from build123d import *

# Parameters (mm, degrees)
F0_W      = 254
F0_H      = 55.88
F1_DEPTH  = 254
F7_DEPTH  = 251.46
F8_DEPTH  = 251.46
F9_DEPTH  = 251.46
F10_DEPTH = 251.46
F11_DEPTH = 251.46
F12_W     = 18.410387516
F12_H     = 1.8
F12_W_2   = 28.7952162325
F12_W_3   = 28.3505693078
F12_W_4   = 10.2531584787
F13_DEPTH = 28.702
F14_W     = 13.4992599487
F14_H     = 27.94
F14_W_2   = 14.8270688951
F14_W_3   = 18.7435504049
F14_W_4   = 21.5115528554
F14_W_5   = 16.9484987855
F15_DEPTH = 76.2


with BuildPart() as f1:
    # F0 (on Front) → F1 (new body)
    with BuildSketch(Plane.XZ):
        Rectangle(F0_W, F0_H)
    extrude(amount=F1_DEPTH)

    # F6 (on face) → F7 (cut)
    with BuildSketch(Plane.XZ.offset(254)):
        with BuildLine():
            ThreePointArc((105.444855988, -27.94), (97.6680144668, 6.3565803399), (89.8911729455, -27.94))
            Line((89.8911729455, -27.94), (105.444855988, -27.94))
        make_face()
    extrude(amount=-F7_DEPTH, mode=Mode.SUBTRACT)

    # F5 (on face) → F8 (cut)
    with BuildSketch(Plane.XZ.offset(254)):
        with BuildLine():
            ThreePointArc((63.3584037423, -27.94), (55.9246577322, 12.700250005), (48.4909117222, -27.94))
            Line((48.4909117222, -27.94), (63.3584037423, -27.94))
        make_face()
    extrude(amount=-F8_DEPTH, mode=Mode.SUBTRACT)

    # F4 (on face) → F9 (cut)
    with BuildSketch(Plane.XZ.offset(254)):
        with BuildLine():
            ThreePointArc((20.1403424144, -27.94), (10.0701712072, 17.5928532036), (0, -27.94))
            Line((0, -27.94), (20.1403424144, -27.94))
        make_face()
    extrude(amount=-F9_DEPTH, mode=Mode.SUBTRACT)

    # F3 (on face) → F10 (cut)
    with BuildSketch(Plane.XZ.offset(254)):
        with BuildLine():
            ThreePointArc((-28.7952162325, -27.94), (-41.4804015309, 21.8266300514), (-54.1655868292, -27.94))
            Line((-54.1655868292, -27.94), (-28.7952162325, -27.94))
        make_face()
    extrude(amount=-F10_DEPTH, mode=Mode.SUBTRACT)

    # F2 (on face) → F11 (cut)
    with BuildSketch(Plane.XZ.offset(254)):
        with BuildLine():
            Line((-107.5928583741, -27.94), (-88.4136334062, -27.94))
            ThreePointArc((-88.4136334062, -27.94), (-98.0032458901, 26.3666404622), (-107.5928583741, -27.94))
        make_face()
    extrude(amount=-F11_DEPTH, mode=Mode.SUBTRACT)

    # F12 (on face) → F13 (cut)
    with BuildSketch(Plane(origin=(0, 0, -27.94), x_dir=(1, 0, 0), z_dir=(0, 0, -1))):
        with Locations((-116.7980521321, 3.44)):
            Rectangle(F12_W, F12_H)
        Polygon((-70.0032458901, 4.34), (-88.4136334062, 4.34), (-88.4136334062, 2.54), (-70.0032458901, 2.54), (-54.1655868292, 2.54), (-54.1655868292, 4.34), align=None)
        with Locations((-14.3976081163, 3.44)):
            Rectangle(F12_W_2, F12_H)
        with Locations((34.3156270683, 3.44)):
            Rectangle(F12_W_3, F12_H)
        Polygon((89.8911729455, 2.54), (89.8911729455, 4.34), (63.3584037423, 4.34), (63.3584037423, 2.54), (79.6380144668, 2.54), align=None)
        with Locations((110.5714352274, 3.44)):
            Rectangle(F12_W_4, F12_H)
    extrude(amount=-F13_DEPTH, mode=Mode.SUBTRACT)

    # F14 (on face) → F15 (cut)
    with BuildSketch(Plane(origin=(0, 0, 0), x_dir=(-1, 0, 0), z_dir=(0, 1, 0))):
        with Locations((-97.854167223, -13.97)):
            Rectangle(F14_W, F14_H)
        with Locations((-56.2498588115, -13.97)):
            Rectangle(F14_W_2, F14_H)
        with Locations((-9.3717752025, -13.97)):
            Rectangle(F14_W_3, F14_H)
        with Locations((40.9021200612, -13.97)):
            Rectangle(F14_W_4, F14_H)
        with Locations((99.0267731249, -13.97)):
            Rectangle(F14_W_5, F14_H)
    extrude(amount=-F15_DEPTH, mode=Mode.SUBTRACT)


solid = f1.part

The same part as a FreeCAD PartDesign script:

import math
import FreeCAD as App
import Part
import Sketcher
from FreeCAD import Vector
Q = App.Units.Quantity


def add_polygon(sketch, points):
    """Adds a closed chain of lines whose ends are joined by coincident constraints."""
    first, n = sketch.GeometryCount, len(points)
    for a, b in zip(points, points[1:] + points[:1]):
        sketch.addGeometry(Part.LineSegment(App.Vector(*a, 0), App.Vector(*b, 0)), False)
    for i in range(n):
        sketch.addConstraint(Sketcher.Constraint("Coincident", first + i, 2, first + (i + 1) % n, 1))

doc = App.newDocument("Part")
body = doc.addObject("PartDesign::Body", "Body")

# Sketch on XZ plane
sketch1 = body.newObject("Sketcher::SketchObject", "Sketch")
sketch1.AttachmentSupport = (doc.getObject("XZ_Plane"), [""])
sketch1.MapMode = "FlatFace"
add_polygon(sketch1, [(-127, 28), (-127, -28), (127, -28), (127, 28)])  # lines 0-3
sketch1.addConstraint([
    Sketcher.Constraint("Vertical", 0),
    Sketcher.Constraint("Horizontal", 1),
    Sketcher.Constraint("Vertical", 2),
    Sketcher.Constraint("Horizontal", 3),
    Sketcher.Constraint("Symmetric", 0, 2, 2, 2, -1, 1),
    Sketcher.Constraint("DistanceX", 1, 1, 1, 2, Q("10 in")),
    Sketcher.Constraint("DistanceY", 0, 2, 0, 1, Q("2.2 in")),
])
pad1 = body.newObject("PartDesign::Pad", "Pad")
pad1.Profile = sketch1
pad1.Length = Q("10 in")

# Sketch on XZ plane
sketch2 = body.newObject("Sketcher::SketchObject", "Sketch001")
sketch2.AttachmentSupport = (doc.getObject("XZ_Plane"), [""])
sketch2.MapMode = "FlatFace"
sketch2.AttachmentOffset = App.Placement(Vector(0, 0, 10 * 25.4), App.Rotation())
sketch2.addGeometry([
    Part.ArcOfCircle(Part.Circle(Vector(98, -12, 0), Vector(0, 0, 1), 18), math.radians(-64), math.radians(244)),
    Part.LineSegment(Vector(90, -28, 0), Vector(105, -28, 0)),
], False)
sketch2.addConstraint([
    Sketcher.Constraint("Coincident", 0, 1, 1, 2),
    Sketcher.Constraint("Coincident", 1, 1, 0, 2),
    Sketcher.Constraint("Horizontal", 1),
    Sketcher.Constraint("DistanceY", 0, 1, -1, 1, Q("1.1 in")),
    Sketcher.Constraint("Radius", 0, 18.03),
    Sketcher.Constraint("DistanceX", 1, 1, 1, 2, 15.553683),
    Sketcher.Constraint("DistanceX", -1, 1, 0, 3, 97.668014),
])
pocket1 = body.newObject("PartDesign::Pocket", "Pocket")
pocket1.Profile = sketch2
pocket1.Length = Q("9.9 in")

# Sketch on XZ plane
sketch3 = body.newObject("Sketcher::SketchObject", "Sketch002")
sketch3.AttachmentSupport = (doc.getObject("XZ_Plane"), [""])
sketch3.MapMode = "FlatFace"
sketch3.AttachmentOffset = App.Placement(Vector(0, 0, 10 * 25.4), App.Rotation())
sketch3.addGeometry([
    Part.ArcOfCircle(Part.Circle(Vector(56, -8, 0), Vector(0, 0, 1), 21), math.radians(-69), math.radians(249)),
    Part.LineSegment(Vector(48, -28, 0), Vector(63, -28, 0)),
], False)
sketch3.addConstraint([
    Sketcher.Constraint("Coincident", 0, 1, 1, 2),
    Sketcher.Constraint("Coincident", 1, 1, 0, 2),
    Sketcher.Constraint("Horizontal", 1),
    Sketcher.Constraint("DistanceY", 0, 1, -1, 1, Q("1.1 in")),
    Sketcher.Constraint("Radius", 0, 21.0),
    Sketcher.Constraint("DistanceX", 1, 1, 1, 2, 14.867492),
    Sketcher.Constraint("DistanceX", -1, 1, 1, 1, 48.490912),
])
pocket2 = body.newObject("PartDesign::Pocket", "Pocket001")
pocket2.Profile = sketch3
pocket2.Length = Q("9.9 in")

# Sketch on XZ plane
sketch4 = body.newObject("Sketcher::SketchObject", "Sketch003")
sketch4.AttachmentSupport = (doc.getObject("XZ_Plane"), [""])
sketch4.MapMode = "FlatFace"
sketch4.AttachmentOffset = App.Placement(Vector(0, 0, 10 * 25.4), App.Rotation())
sketch4.addGeometry([
    Part.ArcOfCircle(Part.Circle(Vector(10, -6, 0), Vector(0, 0, 1), 24), math.radians(-65), math.radians(245)),
    Part.LineSegment(Vector(0, -28, 0), Vector(20, -28, 0)),
], False)
sketch4.addConstraint([
    Sketcher.Constraint("Coincident", 0, 1, 1, 2),
    Sketcher.Constraint("Coincident", 1, 1, 0, 2),
    Sketcher.Constraint("Horizontal", 1),
    Sketcher.Constraint("PointOnObject", 1, 1, -2),
    Sketcher.Constraint("DistanceY", 0, 1, -1, 1, Q("1.1 in")),
    Sketcher.Constraint("Radius", 0, 23.88),
    Sketcher.Constraint("DistanceX", 1, 1, 1, 2, 20.140342),
])
pocket3 = body.newObject("PartDesign::Pocket", "Pocket002")
pocket3.Profile = sketch4
pocket3.Length = Q("9.9 in")

# Sketch on XZ plane
sketch5 = body.newObject("Sketcher::SketchObject", "Sketch004")
sketch5.AttachmentSupport = (doc.getObject("XZ_Plane"), [""])
sketch5.MapMode = "FlatFace"
sketch5.AttachmentOffset = App.Placement(Vector(0, 0, 10 * 25.4), App.Rotation())
sketch5.addGeometry([
    Part.ArcOfCircle(Part.Circle(Vector(-41, -5, 0), Vector(0, 0, 1), 26), math.radians(-61), math.radians(241)),
    Part.LineSegment(Vector(-54, -28, 0), Vector(-29, -28, 0)),
], False)
sketch5.addConstraint([
    Sketcher.Constraint("Coincident", 0, 1, 1, 2),
    Sketcher.Constraint("Coincident", 1, 1, 0, 2),
    Sketcher.Constraint("Horizontal", 1),
    Sketcher.Constraint("DistanceY", 0, 1, -1, 1, Q("1.1 in")),
    Sketcher.Constraint("Radius", 0, 26.5),
    Sketcher.Constraint("DistanceX", 1, 1, 1, 2, 25.370371),
    Sketcher.Constraint("DistanceX", 0, 3, -1, 1, 41.480402),
])
pocket4 = body.newObject("PartDesign::Pocket", "Pocket003")
pocket4.Profile = sketch5
pocket4.Length = Q("9.9 in")

# Sketch on XZ plane
sketch6 = body.newObject("Sketcher::SketchObject", "Sketch005")
sketch6.AttachmentSupport = (doc.getObject("XZ_Plane"), [""])
sketch6.MapMode = "FlatFace"
sketch6.AttachmentOffset = App.Placement(Vector(0, 0, 10 * 25.4), App.Rotation())
sketch6.addGeometry([
    Part.LineSegment(Vector(-108, -28, 0), Vector(-88, -28, 0)),
    Part.ArcOfCircle(Part.Circle(Vector(-98, -2, 0), Vector(0, 0, 1), 28), math.radians(-70), math.radians(250)),
], False)
sketch6.addConstraint([
    Sketcher.Constraint("Coincident", 0, 1, 1, 2),
    Sketcher.Constraint("Coincident", 1, 1, 0, 2),
    Sketcher.Constraint("Horizontal", 0),
    Sketcher.Constraint("DistanceY", 0, 1, -1, 1, Q("1.1 in")),
    Sketcher.Constraint("Radius", 1, 28.0),
    Sketcher.Constraint("DistanceX", 0, 1, 0, 2, 19.179225),
    Sketcher.Constraint("DistanceX", 0, 1, -1, 1, 107.592858),
])
pocket5 = body.newObject("PartDesign::Pocket", "Pocket004")
pocket5.Profile = sketch6
pocket5.Length = Q("9.9 in")

# Sketch on XY plane
sketch7 = body.newObject("Sketcher::SketchObject", "Sketch006")
sketch7.AttachmentSupport = (doc.getObject("XY_Plane"), [""])
sketch7.MapMode = "FlatFace"
sketch7.AttachmentOffset = App.Placement(Vector(0, 0, -1.1 * 25.4), App.Rotation())
add_polygon(sketch7, [(-126, -4.3), (-126, -2.5), (-107.6, -2.5), (-107.6, -4.3)])  # lines 0-3
add_polygon(sketch7, [(-88.4, -4.3), (-88.4, -2.5), (-54.2, -2.5), (-54.2, -4.3)])  # lines 4-7
add_polygon(sketch7, [(-28.8, -4.3), (-28.8, -2.5), (0, -2.5), (0, -4.3)])  # lines 8-11
add_polygon(sketch7, [(20.1, -4.3), (20.1, -2.5), (48.5, -2.5), (48.5, -4.3)])  # lines 12-15
add_polygon(sketch7, [(89.9, -2.5), (89.9, -4.3), (63.4, -4.3), (63.4, -2.5)])  # lines 16-19
add_polygon(sketch7, [(105.4, -4.3), (105.4, -2.5), (115.7, -2.5), (115.7, -4.3)])  # lines 20-23
sketch7.addConstraint([
    Sketcher.Constraint("Vertical", 0),
    Sketcher.Constraint("Horizontal", 1),
    Sketcher.Constraint("Vertical", 2),
    Sketcher.Constraint("Horizontal", 3),
    Sketcher.Constraint("Vertical", 4),
    Sketcher.Constraint("Horizontal", 5),
    Sketcher.Constraint("Vertical", 6),
    Sketcher.Constraint("Horizontal", 7),
    Sketcher.Constraint("Vertical", 8),
    Sketcher.Constraint("Horizontal", 9),
    Sketcher.Constraint("Vertical", 10),
    Sketcher.Constraint("Horizontal", 11),
    Sketcher.Constraint("Vertical", 12),
    Sketcher.Constraint("Horizontal", 13),
    Sketcher.Constraint("Vertical", 14),
    Sketcher.Constraint("Horizontal", 15),
    Sketcher.Constraint("Vertical", 16),
    Sketcher.Constraint("Horizontal", 17),
    Sketcher.Constraint("Vertical", 18),
    Sketcher.Constraint("Horizontal", 19),
    Sketcher.Constraint("Vertical", 20),
    Sketcher.Constraint("Horizontal", 21),
    Sketcher.Constraint("Vertical", 22),
    Sketcher.Constraint("Horizontal", 23),
    Sketcher.Constraint("PointOnObject", 9, 2, -2),
    Sketcher.Constraint("Horizontal", 1, 2, 4, 2),
    Sketcher.Constraint("Horizontal", 3, 2, 6, 2),
    Sketcher.Constraint("Horizontal", 5, 2, 8, 2),
    Sketcher.Constraint("Horizontal", 7, 2, 10, 2),
    Sketcher.Constraint("Horizontal", 9, 2, 12, 2),
    Sketcher.Constraint("Horizontal", 11, 2, 14, 2),
    Sketcher.Constraint("Horizontal", 15, 2, 16, 2),
    Sketcher.Constraint("Horizontal", 13, 2, 18, 2),
    Sketcher.Constraint("Horizontal", 19, 2, 20, 2),
    Sketcher.Constraint("Horizontal", 17, 2, 22, 2),
    Sketcher.Constraint("DistanceY", 0, 2, -1, 1, Q("0.1 in")),
    Sketcher.Constraint("DistanceY", 0, 1, 0, 2, 1.8),
    Sketcher.Constraint("DistanceX", 13, 1, 13, 2, 28.350569),
    Sketcher.Constraint("DistanceX", 17, 2, 17, 1, 26.532769),
    Sketcher.Constraint("DistanceX", 21, 1, 21, 2, 10.253158),
    Sketcher.Constraint("DistanceX", 1, 1, 1, 2, 18.410388),
    Sketcher.Constraint("DistanceX", 5, 1, 5, 2, 34.248047),
    Sketcher.Constraint("DistanceX", 9, 1, 9, 2, 28.795216),
    Sketcher.Constraint("DistanceX", 1, 2, -1, 1, 107.592858),
    Sketcher.Constraint("DistanceX", -1, 1, 13, 2, 48.490912),
    Sketcher.Constraint("DistanceX", 1, 2, 5, 2, 53.427272),
    Sketcher.Constraint("DistanceX", 14, 2, 16, 2, 41.400261),
    Sketcher.Constraint("DistanceX", 19, 2, 21, 2, 25.806842),
])
pocket6 = body.newObject("PartDesign::Pocket", "Pocket005")
pocket6.Profile = sketch7
pocket6.Length = Q("1.13 in")
pocket6.Reversed = True

# Sketch on XZ plane
sketch8 = body.newObject("Sketcher::SketchObject", "Sketch007")
sketch8.AttachmentSupport = (doc.getObject("XZ_Plane"), [""])
sketch8.MapMode = "FlatFace"
add_polygon(sketch8, [(105, 0), (105, -28), (91, -28), (91, 0)])  # lines 0-3
add_polygon(sketch8, [(64, 0), (64, -28), (49, -28), (49, 0)])  # lines 4-7
add_polygon(sketch8, [(19, 0), (19, -28), (0, -28), (0, 0)])  # lines 8-11
add_polygon(sketch8, [(-30, 0), (-30, -28), (-52, -28), (-52, 0)])  # lines 12-15
add_polygon(sketch8, [(-91, 0), (-91, -28), (-108, -28), (-108, 0)])  # lines 16-19
sketch8.addConstraint([
    Sketcher.Constraint("Vertical", 0),
    Sketcher.Constraint("Horizontal", 1),
    Sketcher.Constraint("Vertical", 2),
    Sketcher.Constraint("Horizontal", 3),
    Sketcher.Constraint("Vertical", 4),
    Sketcher.Constraint("Horizontal", 5),
    Sketcher.Constraint("Vertical", 6),
    Sketcher.Constraint("Horizontal", 7),
    Sketcher.Constraint("Vertical", 8),
    Sketcher.Constraint("Horizontal", 9),
    Sketcher.Constraint("Vertical", 10),
    Sketcher.Constraint("Horizontal", 11),
    Sketcher.Constraint("Vertical", 12),
    Sketcher.Constraint("Horizontal", 13),
    Sketcher.Constraint("Vertical", 14),
    Sketcher.Constraint("Horizontal", 15),
    Sketcher.Constraint("Vertical", 16),
    Sketcher.Constraint("Horizontal", 17),
    Sketcher.Constraint("Vertical", 18),
    Sketcher.Constraint("Horizontal", 19),
    Sketcher.Constraint("Coincident", 10, 2, -1, 1),
    Sketcher.Constraint("PointOnObject", 2, 2, -1),
    Sketcher.Constraint("PointOnObject", 6, 2, -1),
    Sketcher.Constraint("PointOnObject", 14, 2, -1),
    Sketcher.Constraint("PointOnObject", 18, 2, -1),
    Sketcher.Constraint("Horizontal", 1, 2, 4, 2),
    Sketcher.Constraint("Horizontal", 5, 2, 8, 2),
    Sketcher.Constraint("Horizontal", 9, 2, 12, 2),
    Sketcher.Constraint("Horizontal", 13, 2, 16, 2),
    Sketcher.Constraint("DistanceY", 0, 2, 0, 1, Q("1.1 in")),
    Sketcher.Constraint("DistanceX", 17, 2, 17, 1, 16.948499),
    Sketcher.Constraint("DistanceX", 1, 2, 1, 1, 13.49926),
    Sketcher.Constraint("DistanceX", 5, 2, 5, 1, 14.827069),
    Sketcher.Constraint("DistanceX", 9, 2, 9, 1, 18.74355),
    Sketcher.Constraint("DistanceX", 13, 2, 13, 1, 21.511553),
    Sketcher.Constraint("DistanceX", 16, 2, 12, 2, 60.40618),
    Sketcher.Constraint("DistanceX", -1, 1, 0, 2, 104.603797),
    Sketcher.Constraint("DistanceX", -1, 1, 4, 2, 63.663393),
    Sketcher.Constraint("DistanceX", 12, 2, -1, 1, 30.146344),
])
pocket7 = body.newObject("PartDesign::Pocket", "Pocket006")
pocket7.Profile = sketch8
pocket7.Length = Q("3 in")
pocket7.Reversed = True

doc.recompute()
